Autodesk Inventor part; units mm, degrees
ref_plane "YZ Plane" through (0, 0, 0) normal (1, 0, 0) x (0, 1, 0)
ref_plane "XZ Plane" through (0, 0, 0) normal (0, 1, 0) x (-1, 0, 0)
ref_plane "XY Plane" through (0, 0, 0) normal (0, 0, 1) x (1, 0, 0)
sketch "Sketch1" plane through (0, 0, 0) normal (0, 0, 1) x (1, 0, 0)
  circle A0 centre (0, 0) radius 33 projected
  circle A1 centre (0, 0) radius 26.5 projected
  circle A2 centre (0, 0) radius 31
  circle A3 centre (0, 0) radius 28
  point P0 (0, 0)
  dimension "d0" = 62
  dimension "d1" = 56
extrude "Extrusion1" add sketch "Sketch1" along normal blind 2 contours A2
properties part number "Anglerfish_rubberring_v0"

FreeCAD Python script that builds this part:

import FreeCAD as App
import Part
import Sketcher
Q = App.Units.Quantity

doc = App.newDocument("Part")
params = doc.addObject("Spreadsheet::Sheet", "Params")
for row, (alias, value) in enumerate([
    ("sketch1_diameter", "62 mm"),
    ("sketch1_diameter2", "56 mm"),
    ("pad1_length", "2 mm"),
], start=1):
    params.set(f"A{row}", alias)
    params.set(f"B{row}", "=" + value)
    params.setAlias(f"B{row}", alias)

body = doc.addObject("PartDesign::Body", "Body")

# Sketch on XY plane
sketch1 = doc.addObject("Sketcher::SketchObject", "Sketch")
body.addObject(sketch1)
sketch1.AttachmentSupport = (doc.XY_Plane, [""])
sketch1.MapMode = "FlatFace"
sketch1.addGeometry([
    Part.Circle(App.Vector(0, 0, 0), App.Vector(0, 0, 1), 31),
    Part.Circle(App.Vector(0, 0, 0), App.Vector(0, 0, 1), 28),
], False)
sketch1.addConstraint([
    Sketcher.Constraint("Coincident", 0, 3, -1, 1),
    Sketcher.Constraint("Coincident", 1, 3, -1, 1),
    Sketcher.Constraint("Diameter", 0, Q("62 mm")),
    Sketcher.Constraint("Diameter", 1, Q("56 mm")),
])
sketch1.setExpression("Constraints[2]", "Params.sketch1_diameter")
sketch1.setExpression("Constraints[3]", "Params.sketch1_diameter2")
pad1 = doc.addObject("PartDesign::Pad", "Pad")
body.addObject(pad1)
pad1.Profile = sketch1
pad1.setExpression("Length", "Params.pad1_length")

doc.recompute()
